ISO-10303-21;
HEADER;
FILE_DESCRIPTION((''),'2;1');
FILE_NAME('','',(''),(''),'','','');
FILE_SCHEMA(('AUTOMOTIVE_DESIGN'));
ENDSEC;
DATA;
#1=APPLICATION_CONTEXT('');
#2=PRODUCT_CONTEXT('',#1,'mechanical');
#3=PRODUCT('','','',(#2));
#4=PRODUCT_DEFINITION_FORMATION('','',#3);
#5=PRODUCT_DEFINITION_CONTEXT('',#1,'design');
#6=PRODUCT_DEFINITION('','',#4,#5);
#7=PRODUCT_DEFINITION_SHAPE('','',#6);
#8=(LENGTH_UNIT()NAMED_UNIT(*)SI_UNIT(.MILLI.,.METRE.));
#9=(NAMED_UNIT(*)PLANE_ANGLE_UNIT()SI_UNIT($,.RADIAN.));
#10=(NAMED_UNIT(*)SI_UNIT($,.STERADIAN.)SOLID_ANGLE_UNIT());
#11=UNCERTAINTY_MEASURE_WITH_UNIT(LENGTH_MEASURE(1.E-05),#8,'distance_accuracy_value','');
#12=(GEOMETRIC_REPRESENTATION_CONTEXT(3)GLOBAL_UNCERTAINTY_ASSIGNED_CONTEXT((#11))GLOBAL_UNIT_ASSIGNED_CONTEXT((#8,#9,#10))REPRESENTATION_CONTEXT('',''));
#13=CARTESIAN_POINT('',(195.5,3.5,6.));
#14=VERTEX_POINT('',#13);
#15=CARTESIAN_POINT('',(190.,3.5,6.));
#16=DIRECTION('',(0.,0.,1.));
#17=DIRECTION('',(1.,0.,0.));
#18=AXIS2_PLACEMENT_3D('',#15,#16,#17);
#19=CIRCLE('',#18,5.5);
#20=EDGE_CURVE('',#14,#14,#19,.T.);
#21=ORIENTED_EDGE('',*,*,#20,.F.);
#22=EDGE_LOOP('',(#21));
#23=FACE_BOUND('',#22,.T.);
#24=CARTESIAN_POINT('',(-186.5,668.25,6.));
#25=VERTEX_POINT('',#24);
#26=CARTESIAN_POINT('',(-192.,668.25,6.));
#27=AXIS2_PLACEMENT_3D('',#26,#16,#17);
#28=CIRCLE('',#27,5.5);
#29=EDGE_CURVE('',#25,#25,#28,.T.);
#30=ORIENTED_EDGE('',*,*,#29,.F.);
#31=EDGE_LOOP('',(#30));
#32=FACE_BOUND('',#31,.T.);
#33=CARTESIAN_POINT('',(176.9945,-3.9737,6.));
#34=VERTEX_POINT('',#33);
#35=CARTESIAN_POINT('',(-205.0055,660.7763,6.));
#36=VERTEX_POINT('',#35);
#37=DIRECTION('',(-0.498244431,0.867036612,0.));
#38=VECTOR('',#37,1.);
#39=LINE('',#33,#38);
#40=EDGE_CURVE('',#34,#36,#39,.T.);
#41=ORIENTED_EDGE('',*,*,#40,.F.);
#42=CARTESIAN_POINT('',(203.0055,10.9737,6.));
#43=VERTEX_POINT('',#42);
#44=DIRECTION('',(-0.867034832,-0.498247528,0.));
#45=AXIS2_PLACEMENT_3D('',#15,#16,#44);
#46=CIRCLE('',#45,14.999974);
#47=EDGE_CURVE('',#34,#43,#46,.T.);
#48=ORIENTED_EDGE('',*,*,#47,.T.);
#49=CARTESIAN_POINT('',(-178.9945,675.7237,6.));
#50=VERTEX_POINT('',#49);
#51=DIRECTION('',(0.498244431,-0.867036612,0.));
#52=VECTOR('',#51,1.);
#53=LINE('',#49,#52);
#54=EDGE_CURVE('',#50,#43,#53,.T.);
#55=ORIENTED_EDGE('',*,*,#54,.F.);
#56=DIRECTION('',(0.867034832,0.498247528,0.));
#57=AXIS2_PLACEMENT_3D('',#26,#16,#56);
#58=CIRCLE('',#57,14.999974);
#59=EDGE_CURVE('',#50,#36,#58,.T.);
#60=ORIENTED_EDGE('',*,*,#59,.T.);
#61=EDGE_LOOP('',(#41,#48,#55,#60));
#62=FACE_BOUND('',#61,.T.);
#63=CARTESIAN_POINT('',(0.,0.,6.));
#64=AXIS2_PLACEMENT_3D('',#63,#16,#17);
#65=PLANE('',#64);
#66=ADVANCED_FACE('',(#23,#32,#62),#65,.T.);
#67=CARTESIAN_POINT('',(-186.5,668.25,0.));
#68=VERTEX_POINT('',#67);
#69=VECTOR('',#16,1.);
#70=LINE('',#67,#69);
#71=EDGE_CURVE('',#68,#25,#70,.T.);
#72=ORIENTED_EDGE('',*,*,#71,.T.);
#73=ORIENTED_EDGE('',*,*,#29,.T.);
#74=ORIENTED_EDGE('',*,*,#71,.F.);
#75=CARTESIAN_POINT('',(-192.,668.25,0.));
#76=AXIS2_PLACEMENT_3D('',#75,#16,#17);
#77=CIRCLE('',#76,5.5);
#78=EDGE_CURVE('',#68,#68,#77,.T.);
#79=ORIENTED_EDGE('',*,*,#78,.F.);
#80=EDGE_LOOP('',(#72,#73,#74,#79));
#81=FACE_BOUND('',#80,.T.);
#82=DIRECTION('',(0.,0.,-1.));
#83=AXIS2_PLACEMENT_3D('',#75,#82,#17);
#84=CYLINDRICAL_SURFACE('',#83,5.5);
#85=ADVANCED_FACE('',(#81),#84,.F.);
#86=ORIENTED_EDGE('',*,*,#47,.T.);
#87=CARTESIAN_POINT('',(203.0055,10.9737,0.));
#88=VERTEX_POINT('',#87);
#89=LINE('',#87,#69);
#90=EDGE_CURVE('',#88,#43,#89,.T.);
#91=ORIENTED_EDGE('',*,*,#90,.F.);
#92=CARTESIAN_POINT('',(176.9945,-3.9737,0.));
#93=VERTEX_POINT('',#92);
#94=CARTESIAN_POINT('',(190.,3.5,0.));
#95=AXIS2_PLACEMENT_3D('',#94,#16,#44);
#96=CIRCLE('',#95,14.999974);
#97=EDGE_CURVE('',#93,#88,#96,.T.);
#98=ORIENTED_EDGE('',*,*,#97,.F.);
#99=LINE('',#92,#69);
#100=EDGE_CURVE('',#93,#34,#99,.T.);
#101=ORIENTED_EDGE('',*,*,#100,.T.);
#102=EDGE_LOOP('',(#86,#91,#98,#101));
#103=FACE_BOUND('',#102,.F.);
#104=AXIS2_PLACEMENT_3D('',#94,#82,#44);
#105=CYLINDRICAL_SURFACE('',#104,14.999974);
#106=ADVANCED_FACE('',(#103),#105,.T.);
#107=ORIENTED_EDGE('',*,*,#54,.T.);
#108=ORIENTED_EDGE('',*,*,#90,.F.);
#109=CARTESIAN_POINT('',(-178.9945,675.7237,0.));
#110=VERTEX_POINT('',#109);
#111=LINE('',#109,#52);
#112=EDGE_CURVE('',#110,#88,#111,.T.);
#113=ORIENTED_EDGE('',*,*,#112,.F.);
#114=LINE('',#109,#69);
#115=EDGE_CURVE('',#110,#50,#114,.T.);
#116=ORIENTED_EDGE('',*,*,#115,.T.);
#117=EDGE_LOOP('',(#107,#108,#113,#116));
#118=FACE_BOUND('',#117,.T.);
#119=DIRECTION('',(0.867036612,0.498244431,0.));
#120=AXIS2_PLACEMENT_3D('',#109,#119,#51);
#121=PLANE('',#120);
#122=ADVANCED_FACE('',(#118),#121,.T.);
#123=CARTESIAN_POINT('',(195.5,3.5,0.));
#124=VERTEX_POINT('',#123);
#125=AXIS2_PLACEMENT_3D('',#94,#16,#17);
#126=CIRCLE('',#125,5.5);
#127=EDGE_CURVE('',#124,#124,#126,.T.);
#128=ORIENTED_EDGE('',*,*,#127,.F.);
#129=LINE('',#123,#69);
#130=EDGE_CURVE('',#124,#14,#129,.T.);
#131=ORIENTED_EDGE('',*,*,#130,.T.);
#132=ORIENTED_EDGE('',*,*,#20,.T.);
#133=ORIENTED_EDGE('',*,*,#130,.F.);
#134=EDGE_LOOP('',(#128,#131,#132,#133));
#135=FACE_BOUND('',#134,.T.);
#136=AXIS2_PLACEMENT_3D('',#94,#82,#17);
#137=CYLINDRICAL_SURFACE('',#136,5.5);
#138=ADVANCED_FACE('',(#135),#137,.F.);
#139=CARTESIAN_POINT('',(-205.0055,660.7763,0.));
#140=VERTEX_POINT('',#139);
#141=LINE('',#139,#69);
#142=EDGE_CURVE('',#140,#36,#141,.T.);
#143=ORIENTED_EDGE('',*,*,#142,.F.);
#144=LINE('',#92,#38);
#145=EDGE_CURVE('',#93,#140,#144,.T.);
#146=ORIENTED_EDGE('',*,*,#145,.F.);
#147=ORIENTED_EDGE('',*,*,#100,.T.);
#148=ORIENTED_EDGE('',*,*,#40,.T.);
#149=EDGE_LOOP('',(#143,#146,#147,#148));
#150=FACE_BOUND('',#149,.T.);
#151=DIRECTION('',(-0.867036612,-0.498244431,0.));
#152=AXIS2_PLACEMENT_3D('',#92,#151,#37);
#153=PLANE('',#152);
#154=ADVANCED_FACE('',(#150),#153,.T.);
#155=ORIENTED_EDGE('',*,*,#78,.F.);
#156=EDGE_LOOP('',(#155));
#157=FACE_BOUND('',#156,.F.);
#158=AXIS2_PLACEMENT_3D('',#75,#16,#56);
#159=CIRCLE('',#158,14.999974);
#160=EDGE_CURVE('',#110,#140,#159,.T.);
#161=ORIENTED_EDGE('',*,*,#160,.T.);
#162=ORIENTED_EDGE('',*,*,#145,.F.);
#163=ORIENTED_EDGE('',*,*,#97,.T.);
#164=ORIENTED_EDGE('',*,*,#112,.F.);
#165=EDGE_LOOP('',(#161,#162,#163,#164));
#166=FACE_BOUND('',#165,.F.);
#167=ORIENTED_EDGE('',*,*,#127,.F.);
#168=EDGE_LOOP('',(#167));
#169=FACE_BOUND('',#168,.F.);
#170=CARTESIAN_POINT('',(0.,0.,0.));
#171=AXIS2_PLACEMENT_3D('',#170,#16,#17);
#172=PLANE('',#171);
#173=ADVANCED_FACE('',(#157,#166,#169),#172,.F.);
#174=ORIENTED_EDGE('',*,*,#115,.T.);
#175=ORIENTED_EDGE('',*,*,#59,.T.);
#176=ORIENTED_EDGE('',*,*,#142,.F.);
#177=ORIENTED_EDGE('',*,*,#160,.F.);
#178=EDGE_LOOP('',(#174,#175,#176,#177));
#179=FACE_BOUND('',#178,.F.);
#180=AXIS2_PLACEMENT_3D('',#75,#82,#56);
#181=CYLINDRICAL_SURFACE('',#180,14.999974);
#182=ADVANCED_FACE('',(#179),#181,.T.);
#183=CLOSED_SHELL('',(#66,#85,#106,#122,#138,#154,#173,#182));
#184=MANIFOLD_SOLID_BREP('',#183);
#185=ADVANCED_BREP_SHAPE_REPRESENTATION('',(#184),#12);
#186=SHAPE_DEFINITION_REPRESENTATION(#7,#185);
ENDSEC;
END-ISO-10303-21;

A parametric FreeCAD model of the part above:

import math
import FreeCAD as App
import Part
import Sketcher

V = App.Vector
Q = App.Units.Quantity

doc = App.newDocument("Part")
body = doc.addObject("PartDesign::Body", "Body")

# Sketch on XY plane
sketch1 = body.newObject("Sketcher::SketchObject", "Sketch")
sketch1.AttachmentSupport = (doc.getObject("XY_Plane"), [""])
sketch1.MapMode = "FlatFace"
sketch1.addGeometry([
    Part.LineSegment(V(-205, 661, 0), V(177, -4, 0)),  # 0
    Part.ArcOfCircle(Part.Circle(V(190, 4, 0), V(0, 0, 1), 15), math.radians(-150), math.radians(30)),  # 1
    Part.LineSegment(V(203, 11, 0), V(-179, 676, 0)),  # 2
    Part.ArcOfCircle(Part.Circle(V(-192, 668, 0), V(0, 0, 1), 15), math.radians(30), math.radians(210)),  # 3
    Part.Circle(V(190, 4, 0), V(0, 0, 1), 6),  # 4
    Part.Circle(V(-192, 668, 0), V(0, 0, 1), 6),  # 5
], False)
sketch1.addConstraint([
    Sketcher.Constraint("Tangent", 0, 2, 1, 1),
    Sketcher.Constraint("Tangent", 1, 2, 2, 1),
    Sketcher.Constraint("Tangent", 2, 2, 3, 1),
    Sketcher.Constraint("Tangent", 3, 2, 0, 1),
    Sketcher.Constraint("Coincident", 4, 3, 1, 3),
    Sketcher.Constraint("Coincident", 5, 3, 3, 3),
    Sketcher.Constraint("Equal", 1, 3),
    Sketcher.Constraint("Equal", 4, 5),
    Sketcher.Constraint("Diameter", 4, Q("11 mm")),
    Sketcher.Constraint("Radius", 1, Q("15 mm")),
    Sketcher.Constraint("DistanceX", -1, 1, 1, 3, Q("190 mm")),
    Sketcher.Constraint("DistanceX", 3, 3, -1, 1, Q("192 mm")),
    Sketcher.Constraint("DistanceY", -1, 1, 1, 3, Q("3.5 mm")),
    Sketcher.Constraint("DistanceY", -1, 1, 3, 3, Q("668.25 mm")),
])
pad1 = body.newObject("PartDesign::Pad", "Pad")
pad1.Profile = sketch1
pad1.Length = 6

doc.recompute()
